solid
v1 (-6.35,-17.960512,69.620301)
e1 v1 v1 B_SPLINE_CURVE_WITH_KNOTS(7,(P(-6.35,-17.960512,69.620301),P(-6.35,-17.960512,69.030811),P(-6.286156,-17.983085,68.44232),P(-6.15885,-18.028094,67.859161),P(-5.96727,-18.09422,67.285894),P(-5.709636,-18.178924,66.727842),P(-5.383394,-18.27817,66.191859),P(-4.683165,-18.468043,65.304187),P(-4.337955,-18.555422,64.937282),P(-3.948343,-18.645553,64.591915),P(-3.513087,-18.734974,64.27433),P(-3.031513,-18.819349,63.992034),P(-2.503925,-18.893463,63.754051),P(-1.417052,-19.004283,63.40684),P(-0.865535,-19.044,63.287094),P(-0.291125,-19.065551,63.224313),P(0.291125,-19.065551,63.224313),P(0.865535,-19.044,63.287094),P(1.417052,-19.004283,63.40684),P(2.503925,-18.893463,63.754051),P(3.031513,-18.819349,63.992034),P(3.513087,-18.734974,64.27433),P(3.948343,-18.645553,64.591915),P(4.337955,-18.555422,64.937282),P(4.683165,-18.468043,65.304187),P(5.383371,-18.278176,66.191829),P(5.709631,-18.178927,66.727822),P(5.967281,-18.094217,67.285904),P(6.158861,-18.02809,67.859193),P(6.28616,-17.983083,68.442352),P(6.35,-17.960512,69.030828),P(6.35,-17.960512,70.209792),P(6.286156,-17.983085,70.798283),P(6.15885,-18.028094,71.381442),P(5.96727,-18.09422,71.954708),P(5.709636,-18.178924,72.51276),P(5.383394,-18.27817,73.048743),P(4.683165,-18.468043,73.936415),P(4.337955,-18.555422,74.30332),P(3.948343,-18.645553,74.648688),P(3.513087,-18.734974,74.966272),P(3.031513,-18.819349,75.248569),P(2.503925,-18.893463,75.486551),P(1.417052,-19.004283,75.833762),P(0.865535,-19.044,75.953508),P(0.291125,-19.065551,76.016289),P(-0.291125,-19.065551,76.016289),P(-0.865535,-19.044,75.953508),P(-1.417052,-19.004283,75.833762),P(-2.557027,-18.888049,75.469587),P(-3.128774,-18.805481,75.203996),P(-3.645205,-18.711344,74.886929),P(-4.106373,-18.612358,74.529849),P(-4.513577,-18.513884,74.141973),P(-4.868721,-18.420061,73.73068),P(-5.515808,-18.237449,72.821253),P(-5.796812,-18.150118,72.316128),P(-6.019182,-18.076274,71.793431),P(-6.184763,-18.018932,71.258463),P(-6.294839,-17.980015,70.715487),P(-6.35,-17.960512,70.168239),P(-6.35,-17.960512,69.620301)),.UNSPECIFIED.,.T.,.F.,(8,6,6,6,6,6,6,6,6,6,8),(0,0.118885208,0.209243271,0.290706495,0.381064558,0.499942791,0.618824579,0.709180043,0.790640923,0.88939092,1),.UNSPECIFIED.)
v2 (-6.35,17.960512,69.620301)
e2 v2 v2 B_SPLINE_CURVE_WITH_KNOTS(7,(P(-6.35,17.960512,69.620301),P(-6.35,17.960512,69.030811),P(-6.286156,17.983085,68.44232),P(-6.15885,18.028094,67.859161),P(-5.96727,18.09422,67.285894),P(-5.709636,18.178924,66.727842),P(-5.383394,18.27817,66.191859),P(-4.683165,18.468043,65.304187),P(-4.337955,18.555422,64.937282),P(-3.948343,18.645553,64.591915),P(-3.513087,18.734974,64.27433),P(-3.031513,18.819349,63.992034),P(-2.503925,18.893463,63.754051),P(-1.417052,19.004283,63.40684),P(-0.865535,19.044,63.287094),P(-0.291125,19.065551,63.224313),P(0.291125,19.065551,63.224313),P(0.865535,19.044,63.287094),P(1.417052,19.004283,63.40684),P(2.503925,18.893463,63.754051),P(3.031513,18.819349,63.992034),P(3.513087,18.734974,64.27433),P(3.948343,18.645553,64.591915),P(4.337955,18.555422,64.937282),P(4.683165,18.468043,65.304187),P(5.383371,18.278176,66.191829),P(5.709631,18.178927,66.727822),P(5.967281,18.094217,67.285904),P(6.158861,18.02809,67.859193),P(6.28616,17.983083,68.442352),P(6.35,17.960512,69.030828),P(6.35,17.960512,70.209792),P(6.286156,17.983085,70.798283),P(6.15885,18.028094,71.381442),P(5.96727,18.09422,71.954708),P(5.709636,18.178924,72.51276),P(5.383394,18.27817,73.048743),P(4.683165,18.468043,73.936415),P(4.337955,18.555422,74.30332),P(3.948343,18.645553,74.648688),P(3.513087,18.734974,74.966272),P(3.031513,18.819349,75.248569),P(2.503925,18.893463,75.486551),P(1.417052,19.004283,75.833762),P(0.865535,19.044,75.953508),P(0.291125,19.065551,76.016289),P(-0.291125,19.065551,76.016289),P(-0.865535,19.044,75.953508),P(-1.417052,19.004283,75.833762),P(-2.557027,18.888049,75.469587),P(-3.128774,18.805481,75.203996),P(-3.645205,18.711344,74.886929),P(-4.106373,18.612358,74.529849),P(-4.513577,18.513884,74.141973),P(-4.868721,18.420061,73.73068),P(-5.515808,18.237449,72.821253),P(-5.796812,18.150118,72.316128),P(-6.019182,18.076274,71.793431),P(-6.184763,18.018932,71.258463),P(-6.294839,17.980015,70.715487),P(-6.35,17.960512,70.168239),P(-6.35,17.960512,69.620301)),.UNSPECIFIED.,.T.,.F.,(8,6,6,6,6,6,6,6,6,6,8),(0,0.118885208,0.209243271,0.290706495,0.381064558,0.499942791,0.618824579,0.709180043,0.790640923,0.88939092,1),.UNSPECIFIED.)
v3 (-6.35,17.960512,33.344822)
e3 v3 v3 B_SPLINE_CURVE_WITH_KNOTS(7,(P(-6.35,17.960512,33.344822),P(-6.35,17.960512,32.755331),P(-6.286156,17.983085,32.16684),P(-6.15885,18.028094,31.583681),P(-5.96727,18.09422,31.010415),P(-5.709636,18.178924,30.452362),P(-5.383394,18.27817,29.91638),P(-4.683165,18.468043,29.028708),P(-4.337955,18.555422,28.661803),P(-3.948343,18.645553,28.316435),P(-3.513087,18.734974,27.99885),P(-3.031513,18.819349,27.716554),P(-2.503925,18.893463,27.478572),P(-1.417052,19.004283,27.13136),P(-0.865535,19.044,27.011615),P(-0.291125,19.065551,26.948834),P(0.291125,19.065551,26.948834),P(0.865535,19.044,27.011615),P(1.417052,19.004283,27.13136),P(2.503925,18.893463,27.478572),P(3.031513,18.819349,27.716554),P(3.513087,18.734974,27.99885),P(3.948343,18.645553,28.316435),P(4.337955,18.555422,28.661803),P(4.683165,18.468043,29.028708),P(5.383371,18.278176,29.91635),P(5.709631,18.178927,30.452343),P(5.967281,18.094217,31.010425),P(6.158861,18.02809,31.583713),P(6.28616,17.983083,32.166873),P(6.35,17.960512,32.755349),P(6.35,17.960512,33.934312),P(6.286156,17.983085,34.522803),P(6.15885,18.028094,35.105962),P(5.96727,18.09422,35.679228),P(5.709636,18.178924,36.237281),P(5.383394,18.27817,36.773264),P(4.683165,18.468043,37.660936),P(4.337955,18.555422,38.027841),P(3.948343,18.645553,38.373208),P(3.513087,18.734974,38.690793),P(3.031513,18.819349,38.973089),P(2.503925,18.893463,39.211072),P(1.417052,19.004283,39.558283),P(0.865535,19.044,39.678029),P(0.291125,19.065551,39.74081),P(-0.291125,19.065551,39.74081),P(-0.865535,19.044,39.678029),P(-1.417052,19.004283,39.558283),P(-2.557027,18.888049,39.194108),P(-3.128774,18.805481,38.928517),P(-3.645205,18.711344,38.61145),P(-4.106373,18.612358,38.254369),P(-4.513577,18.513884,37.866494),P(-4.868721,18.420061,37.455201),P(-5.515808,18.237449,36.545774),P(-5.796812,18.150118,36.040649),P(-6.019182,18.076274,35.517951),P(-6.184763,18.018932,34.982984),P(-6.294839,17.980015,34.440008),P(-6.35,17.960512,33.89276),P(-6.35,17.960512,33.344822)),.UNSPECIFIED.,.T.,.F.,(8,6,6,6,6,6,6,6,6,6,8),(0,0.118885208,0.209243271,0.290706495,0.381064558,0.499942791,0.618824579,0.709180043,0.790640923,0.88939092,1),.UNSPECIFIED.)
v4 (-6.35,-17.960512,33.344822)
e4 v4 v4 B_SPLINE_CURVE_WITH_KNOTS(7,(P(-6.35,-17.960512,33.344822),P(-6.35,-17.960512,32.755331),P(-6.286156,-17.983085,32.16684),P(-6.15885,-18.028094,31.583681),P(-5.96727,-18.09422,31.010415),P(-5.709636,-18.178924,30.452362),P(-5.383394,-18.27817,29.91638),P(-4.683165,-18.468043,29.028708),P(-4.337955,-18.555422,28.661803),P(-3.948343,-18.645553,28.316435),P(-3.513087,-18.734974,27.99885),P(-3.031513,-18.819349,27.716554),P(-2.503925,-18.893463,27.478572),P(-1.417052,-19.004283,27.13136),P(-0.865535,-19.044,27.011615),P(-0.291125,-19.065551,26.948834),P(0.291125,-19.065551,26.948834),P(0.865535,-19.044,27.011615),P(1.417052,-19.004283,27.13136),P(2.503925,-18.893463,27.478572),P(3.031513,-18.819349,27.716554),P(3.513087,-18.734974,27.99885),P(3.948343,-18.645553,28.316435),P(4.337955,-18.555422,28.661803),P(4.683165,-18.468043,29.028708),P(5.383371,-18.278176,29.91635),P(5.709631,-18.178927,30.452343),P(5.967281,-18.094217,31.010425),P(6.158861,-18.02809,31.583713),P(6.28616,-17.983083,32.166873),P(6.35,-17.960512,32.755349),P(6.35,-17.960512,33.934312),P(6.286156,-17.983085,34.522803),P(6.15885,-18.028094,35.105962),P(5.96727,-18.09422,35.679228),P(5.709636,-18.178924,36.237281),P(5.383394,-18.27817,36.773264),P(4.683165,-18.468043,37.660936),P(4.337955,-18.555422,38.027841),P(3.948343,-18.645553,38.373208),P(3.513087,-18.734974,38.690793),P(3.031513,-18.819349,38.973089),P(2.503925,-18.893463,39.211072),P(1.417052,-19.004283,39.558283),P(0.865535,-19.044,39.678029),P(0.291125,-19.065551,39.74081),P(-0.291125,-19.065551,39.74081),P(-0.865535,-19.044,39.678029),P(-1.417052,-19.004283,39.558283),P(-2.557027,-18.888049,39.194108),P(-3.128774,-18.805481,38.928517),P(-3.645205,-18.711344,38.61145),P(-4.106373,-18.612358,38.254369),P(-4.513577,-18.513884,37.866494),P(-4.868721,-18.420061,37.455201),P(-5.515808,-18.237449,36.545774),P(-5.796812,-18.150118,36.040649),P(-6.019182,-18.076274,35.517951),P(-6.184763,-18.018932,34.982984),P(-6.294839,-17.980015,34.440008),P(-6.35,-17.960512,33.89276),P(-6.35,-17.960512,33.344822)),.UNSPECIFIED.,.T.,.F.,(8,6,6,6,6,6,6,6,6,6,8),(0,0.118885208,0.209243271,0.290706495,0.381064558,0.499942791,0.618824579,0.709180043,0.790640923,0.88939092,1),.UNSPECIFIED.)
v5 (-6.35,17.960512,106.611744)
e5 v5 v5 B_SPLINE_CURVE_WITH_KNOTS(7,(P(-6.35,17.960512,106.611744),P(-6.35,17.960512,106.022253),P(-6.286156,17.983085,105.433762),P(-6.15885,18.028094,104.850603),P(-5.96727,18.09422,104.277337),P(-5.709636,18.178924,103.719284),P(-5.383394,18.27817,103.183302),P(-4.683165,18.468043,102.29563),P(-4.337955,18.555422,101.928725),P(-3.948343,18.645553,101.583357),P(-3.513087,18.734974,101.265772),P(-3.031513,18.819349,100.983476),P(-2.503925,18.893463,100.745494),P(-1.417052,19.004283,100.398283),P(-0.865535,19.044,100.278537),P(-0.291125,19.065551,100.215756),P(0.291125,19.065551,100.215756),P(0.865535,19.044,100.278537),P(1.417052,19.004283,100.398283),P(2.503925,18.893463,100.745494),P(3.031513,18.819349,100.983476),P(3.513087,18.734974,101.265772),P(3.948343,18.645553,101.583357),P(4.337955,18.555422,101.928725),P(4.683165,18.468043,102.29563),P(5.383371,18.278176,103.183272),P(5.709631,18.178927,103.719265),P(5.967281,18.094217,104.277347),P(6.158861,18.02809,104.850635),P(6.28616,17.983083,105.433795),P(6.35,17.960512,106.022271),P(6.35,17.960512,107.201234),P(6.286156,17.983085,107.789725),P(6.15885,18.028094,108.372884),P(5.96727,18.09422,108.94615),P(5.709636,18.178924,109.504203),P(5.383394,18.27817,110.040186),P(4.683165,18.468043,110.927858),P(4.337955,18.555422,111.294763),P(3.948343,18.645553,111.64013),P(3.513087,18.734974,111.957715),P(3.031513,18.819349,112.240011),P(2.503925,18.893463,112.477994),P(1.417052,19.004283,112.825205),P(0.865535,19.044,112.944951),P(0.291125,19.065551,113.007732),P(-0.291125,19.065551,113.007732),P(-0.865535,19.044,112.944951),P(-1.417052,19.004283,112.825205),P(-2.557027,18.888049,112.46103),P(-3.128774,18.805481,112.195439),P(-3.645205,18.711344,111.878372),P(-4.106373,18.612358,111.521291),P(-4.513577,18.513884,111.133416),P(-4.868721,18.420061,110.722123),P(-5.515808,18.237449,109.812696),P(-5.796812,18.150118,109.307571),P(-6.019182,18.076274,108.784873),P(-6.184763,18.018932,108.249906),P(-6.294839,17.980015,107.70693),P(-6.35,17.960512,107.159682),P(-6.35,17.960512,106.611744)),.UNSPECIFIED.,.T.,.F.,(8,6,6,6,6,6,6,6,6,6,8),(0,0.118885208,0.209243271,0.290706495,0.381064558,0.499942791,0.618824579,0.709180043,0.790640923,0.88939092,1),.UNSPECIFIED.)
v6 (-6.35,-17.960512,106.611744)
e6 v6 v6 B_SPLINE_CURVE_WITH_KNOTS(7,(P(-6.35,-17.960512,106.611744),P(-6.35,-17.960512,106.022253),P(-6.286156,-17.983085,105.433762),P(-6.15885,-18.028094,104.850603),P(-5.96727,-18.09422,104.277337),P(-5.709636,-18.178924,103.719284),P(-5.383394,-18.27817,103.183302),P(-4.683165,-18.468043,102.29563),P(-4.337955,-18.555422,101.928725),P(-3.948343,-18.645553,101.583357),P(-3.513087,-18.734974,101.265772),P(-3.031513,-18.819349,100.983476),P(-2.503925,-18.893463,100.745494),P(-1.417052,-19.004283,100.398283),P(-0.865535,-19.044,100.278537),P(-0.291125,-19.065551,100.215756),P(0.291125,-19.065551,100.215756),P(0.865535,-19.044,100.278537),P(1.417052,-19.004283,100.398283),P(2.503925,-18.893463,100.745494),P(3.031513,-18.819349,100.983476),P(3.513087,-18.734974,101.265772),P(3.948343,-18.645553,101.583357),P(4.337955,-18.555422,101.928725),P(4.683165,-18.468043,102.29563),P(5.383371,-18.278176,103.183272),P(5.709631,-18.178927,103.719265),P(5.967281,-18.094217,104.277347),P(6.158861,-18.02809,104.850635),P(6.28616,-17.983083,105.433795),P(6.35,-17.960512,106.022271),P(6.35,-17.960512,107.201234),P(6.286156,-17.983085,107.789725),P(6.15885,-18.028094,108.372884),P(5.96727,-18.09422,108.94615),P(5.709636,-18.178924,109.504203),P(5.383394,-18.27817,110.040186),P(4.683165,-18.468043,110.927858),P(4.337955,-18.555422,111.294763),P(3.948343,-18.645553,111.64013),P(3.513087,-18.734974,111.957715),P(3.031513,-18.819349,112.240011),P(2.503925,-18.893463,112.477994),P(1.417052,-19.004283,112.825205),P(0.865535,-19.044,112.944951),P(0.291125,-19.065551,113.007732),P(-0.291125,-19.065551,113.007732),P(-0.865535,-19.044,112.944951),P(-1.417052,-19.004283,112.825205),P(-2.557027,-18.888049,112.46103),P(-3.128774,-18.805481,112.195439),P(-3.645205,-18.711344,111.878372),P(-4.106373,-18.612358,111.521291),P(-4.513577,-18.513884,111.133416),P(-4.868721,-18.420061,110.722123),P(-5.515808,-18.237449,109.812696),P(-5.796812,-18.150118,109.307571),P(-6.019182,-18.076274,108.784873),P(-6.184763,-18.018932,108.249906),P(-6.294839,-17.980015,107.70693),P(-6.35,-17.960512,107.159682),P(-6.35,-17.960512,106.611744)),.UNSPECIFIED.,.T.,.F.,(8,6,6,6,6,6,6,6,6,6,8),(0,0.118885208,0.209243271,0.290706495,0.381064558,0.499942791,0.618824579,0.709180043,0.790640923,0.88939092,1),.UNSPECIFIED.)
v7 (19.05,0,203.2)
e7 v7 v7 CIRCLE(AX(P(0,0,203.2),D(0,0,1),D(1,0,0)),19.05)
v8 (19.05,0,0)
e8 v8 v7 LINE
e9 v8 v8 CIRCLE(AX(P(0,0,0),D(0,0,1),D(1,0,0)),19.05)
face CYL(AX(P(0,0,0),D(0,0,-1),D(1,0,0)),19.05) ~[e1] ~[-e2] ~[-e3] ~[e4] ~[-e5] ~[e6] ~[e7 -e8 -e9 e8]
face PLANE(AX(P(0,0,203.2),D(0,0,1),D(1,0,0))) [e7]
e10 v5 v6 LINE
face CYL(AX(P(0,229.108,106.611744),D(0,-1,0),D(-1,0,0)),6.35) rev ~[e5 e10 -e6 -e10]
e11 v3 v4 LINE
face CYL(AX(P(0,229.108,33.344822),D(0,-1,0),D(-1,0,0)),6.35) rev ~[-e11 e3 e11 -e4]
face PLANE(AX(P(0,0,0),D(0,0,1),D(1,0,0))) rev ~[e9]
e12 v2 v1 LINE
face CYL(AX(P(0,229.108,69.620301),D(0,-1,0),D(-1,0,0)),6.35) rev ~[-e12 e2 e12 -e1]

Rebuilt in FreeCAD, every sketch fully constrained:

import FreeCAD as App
import Part
import Sketcher
Q = App.Units.Quantity

doc = App.newDocument("Part")
body = doc.addObject("PartDesign::Body", "Body")

# Sketch on XY plane
sketch1 = doc.addObject("Sketcher::SketchObject", "Sketch")
body.addObject(sketch1)
sketch1.AttachmentSupport = (doc.XY_Plane, [""])
sketch1.MapMode = "FlatFace"
sketch1.addGeometry(Part.Circle(App.Vector(0, 0, 0), App.Vector(0, 0, 1), 19), False)
sketch1.addConstraint([
    Sketcher.Constraint("Coincident", 0, 3, -1, 1),
    Sketcher.Constraint("Diameter", 0, Q("1.5 in")),
])
pad1 = doc.addObject("PartDesign::Pad", "Pad")
body.addObject(pad1)
pad1.Profile = sketch1
pad1.Length = Q("8 in")

# Sketch on XZ plane
sketch2 = doc.addObject("Sketcher::SketchObject", "Sketch001")
body.addObject(sketch2)
sketch2.AttachmentSupport = (doc.XZ_Plane, [""])
sketch2.MapMode = "FlatFace"
sketch2.AttachmentOffset = App.Placement(App.Vector(0, 0, -0.75 * 25.4), App.Rotation())
sketch2.addGeometry([
    Part.Circle(App.Vector(0, 33, 0), App.Vector(0, 0, 1), 6),
    Part.Circle(App.Vector(0, 70, 0), App.Vector(0, 0, 1), 6),
    Part.Circle(App.Vector(0, 107, 0), App.Vector(0, 0, 1), 6),
], False)
sketch2.addConstraint([
    Sketcher.Constraint("Equal", 0, 1),
    Sketcher.Constraint("Equal", 1, 2),
    Sketcher.Constraint("PointOnObject", 0, 3, -2),
    Sketcher.Constraint("PointOnObject", 1, 3, -2),
    Sketcher.Constraint("PointOnObject", 2, 3, -2),
    Sketcher.Constraint("Diameter", 0, Q("0.5 in")),
    Sketcher.Constraint("DistanceY", -1, 1, 1, 3, 69.620301),
    Sketcher.Constraint("DistanceY", -1, 1, 0, 3, 33.344822),
    Sketcher.Constraint("DistanceY", -1, 1, 2, 3, 106.611744),
])
doc.recompute()
hole = doc.addObject("PartDesign::Hole", "Hole")
body.addObject(hole)
hole.Profile = sketch2
hole.ThreadType = "None"
hole.Diameter = Q("0.5 in")
hole.DepthType = "Dimension"
hole.Depth = Q("8.27 in")
hole.DrillPoint = "Angled"
hole.DrillPointAngle = 118
hole.Reversed = True

doc.recompute()
